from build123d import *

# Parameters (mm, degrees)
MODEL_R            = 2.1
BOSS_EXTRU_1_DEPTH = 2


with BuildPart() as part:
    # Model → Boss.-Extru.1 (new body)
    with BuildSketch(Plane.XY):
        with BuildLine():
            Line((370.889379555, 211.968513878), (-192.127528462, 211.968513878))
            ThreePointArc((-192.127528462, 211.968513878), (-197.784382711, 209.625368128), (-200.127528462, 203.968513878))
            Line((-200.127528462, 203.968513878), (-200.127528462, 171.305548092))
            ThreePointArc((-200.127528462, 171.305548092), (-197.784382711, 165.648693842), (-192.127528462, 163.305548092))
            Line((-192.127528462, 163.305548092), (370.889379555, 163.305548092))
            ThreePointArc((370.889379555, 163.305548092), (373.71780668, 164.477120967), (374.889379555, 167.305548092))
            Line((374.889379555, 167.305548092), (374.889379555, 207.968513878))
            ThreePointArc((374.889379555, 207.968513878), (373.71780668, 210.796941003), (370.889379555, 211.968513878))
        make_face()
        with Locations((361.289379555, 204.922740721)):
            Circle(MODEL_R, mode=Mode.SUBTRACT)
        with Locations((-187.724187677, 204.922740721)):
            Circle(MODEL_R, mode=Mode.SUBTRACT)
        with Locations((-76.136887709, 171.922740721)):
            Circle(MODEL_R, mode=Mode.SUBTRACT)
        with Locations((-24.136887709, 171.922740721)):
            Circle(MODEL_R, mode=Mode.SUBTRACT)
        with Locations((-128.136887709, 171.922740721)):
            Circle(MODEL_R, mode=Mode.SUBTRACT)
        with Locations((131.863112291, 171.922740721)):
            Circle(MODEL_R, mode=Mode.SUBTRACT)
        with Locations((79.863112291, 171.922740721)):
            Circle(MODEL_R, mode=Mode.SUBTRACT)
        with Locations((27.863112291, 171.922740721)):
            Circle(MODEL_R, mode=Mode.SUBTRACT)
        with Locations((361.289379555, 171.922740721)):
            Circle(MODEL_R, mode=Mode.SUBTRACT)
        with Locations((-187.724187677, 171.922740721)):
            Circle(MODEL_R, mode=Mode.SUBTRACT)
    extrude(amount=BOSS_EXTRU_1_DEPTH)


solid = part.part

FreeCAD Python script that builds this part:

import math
import FreeCAD as App
import Part
import Sketcher

V = App.Vector

doc = App.newDocument("Part")
body = doc.addObject("PartDesign::Body", "Body")

# Sketch on XY plane
sketch1 = body.newObject("Sketcher::SketchObject", "Sketch")
sketch1.AttachmentSupport = (doc.getObject("XY_Plane"), [""])
sketch1.MapMode = "FlatFace"
sketch1.addGeometry(Part.LineSegment(V(370.9, 212, 0), V(-192.1, 212, 0)), False)
sketch1.addGeometry(Part.ArcOfCircle(Part.Circle(V(-192.1, 204, 0), V(0, 0, 1), 8), math.radians(90), math.radians(180)), False)
sketch1.addGeometry(Part.LineSegment(V(-200.1, 204, 0), V(-200.1, 171.3, 0)), False)
sketch1.addGeometry(Part.ArcOfCircle(Part.Circle(V(-192.1, 171.3, 0), V(0, 0, 1), 8), math.radians(180), math.radians(270)), False)
sketch1.addGeometry(Part.LineSegment(V(-192.1, 163.3, 0), V(370.9, 163.3, 0)), False)
sketch1.addGeometry(Part.ArcOfCircle(Part.Circle(V(370.9, 167.3, 0), V(0, 0, 1), 4), math.radians(-90), math.radians(0)), False)
sketch1.addGeometry(Part.LineSegment(V(374.9, 167.3, 0), V(374.9, 208, 0)), False)
sketch1.addGeometry(Part.ArcOfCircle(Part.Circle(V(370.9, 208, 0), V(0, 0, 1), 4), math.radians(0), math.radians(90)), False)
sketch1.addGeometry(Part.Circle(V(-187.7, 171.9, 0), V(0, 0, 1), 2.1), False)
sketch1.addGeometry(Part.Circle(V(-128.1, 171.9, 0), V(0, 0, 1), 2.1), False)
sketch1.addGeometry(Part.Circle(V(-76.1, 171.9, 0), V(0, 0, 1), 2.1), False)
sketch1.addGeometry(Part.Circle(V(-24.1, 171.9, 0), V(0, 0, 1), 2.1), False)
sketch1.addGeometry(Part.Circle(V(27.9, 171.9, 0), V(0, 0, 1), 2.1), False)
sketch1.addGeometry(Part.Circle(V(79.9, 171.9, 0), V(0, 0, 1), 2.1), False)
sketch1.addGeometry(Part.Circle(V(131.9, 171.9, 0), V(0, 0, 1), 2.1), False)
sketch1.addGeometry(Part.Circle(V(361.3, 171.9, 0), V(0, 0, 1), 2.1), False)
sketch1.addGeometry(Part.Circle(V(-187.7, 204.9, 0), V(0, 0, 1), 2.1), False)
sketch1.addGeometry(Part.Circle(V(361.3, 204.9, 0), V(0, 0, 1), 2.1), False)
sketch1.addConstraint(Sketcher.Constraint("Tangent", 0, 2, 1, 1))
sketch1.addConstraint(Sketcher.Constraint("Tangent", 1, 2, 2, 1))
sketch1.addConstraint(Sketcher.Constraint("Tangent", 2, 2, 3, 1))
sketch1.addConstraint(Sketcher.Constraint("Tangent", 3, 2, 4, 1))
sketch1.addConstraint(Sketcher.Constraint("Tangent", 4, 2, 5, 1))
sketch1.addConstraint(Sketcher.Constraint("Tangent", 5, 2, 6, 1))
sketch1.addConstraint(Sketcher.Constraint("Tangent", 6, 2, 7, 1))
sketch1.addConstraint(Sketcher.Constraint("Tangent", 7, 2, 0, 1))
sketch1.addConstraint(Sketcher.Constraint("Horizontal", 0))
sketch1.addConstraint(Sketcher.Constraint("Vertical", 2))
sketch1.addConstraint(Sketcher.Constraint("Horizontal", 4))
sketch1.addConstraint(Sketcher.Constraint("Vertical", 6))
sketch1.addConstraint(Sketcher.Constraint("Equal", 1, 3))
sketch1.addConstraint(Sketcher.Constraint("Equal", 5, 7))
sketch1.addConstraint(Sketcher.Constraint("Equal", 8, 9))
sketch1.addConstraint(Sketcher.Constraint("Equal", 9, 10))
sketch1.addConstraint(Sketcher.Constraint("Equal", 10, 11))
sketch1.addConstraint(Sketcher.Constraint("Equal", 11, 12))
sketch1.addConstraint(Sketcher.Constraint("Equal", 12, 13))
sketch1.addConstraint(Sketcher.Constraint("Equal", 13, 14))
sketch1.addConstraint(Sketcher.Constraint("Equal", 14, 15))
sketch1.addConstraint(Sketcher.Constraint("Equal", 15, 16))
sketch1.addConstraint(Sketcher.Constraint("Equal", 16, 17))
sketch1.addConstraint(Sketcher.Constraint("Horizontal", 8, 3, 9, 3))
sketch1.addConstraint(Sketcher.Constraint("Horizontal", 9, 3, 10, 3))
sketch1.addConstraint(Sketcher.Constraint("Horizontal", 10, 3, 11, 3))
sketch1.addConstraint(Sketcher.Constraint("Horizontal", 11, 3, 12, 3))
sketch1.addConstraint(Sketcher.Constraint("Horizontal", 12, 3, 13, 3))
sketch1.addConstraint(Sketcher.Constraint("Horizontal", 13, 3, 14, 3))
sketch1.addConstraint(Sketcher.Constraint("Horizontal", 14, 3, 15, 3))
sketch1.addConstraint(Sketcher.Constraint("Horizontal", 16, 3, 17, 3))
sketch1.addConstraint(Sketcher.Constraint("Vertical", 8, 3, 16, 3))
sketch1.addConstraint(Sketcher.Constraint("Vertical", 15, 3, 17, 3))
sketch1.addConstraint(Sketcher.Constraint("Radius", 1, 8.0))
sketch1.addConstraint(Sketcher.Constraint("Radius", 5, 4.0))
sketch1.addConstraint(Sketcher.Constraint("Diameter", 8, 4.2))
sketch1.addConstraint(Sketcher.Constraint("DistanceX", 9, 3, 10, 3, 52.0))
sketch1.addConstraint(Sketcher.Constraint("DistanceX", 10, 3, 11, 3, 52.0))
sketch1.addConstraint(Sketcher.Constraint("DistanceX", 11, 3, 12, 3, 52.0))
sketch1.addConstraint(Sketcher.Constraint("DistanceX", 12, 3, 13, 3, 52.0))
sketch1.addConstraint(Sketcher.Constraint("DistanceX", 13, 3, 14, 3, 52.0))
sketch1.addConstraint(Sketcher.Constraint("DistanceY", 8, 3, 16, 3, 33.0))
sketch1.addConstraint(Sketcher.Constraint("DistanceX", 15, 3, 5, 3, 9.6))
sketch1.addConstraint(Sketcher.Constraint("DistanceX", 0, 2, 0, 1, 563.016908))
sketch1.addConstraint(Sketcher.Constraint("DistanceX", 8, 3, 9, 3, 59.5873))
sketch1.addConstraint(Sketcher.Constraint("DistanceY", 2, 2, 2, 1, 32.662966))
sketch1.addConstraint(Sketcher.Constraint("DistanceX", 1, 3, -1, 1, 192.127528))
sketch1.addConstraint(Sketcher.Constraint("DistanceY", -1, 1, 3, 3, 171.305548))
sketch1.addConstraint(Sketcher.Constraint("DistanceY", -1, 1, 8, 3, 171.922741))
sketch1.addConstraint(Sketcher.Constraint("DistanceX", 3, 3, 8, 3, 4.403341))
pad1 = body.newObject("PartDesign::Pad", "Pad")
pad1.Profile = sketch1
pad1.Length = 2

doc.recompute()
